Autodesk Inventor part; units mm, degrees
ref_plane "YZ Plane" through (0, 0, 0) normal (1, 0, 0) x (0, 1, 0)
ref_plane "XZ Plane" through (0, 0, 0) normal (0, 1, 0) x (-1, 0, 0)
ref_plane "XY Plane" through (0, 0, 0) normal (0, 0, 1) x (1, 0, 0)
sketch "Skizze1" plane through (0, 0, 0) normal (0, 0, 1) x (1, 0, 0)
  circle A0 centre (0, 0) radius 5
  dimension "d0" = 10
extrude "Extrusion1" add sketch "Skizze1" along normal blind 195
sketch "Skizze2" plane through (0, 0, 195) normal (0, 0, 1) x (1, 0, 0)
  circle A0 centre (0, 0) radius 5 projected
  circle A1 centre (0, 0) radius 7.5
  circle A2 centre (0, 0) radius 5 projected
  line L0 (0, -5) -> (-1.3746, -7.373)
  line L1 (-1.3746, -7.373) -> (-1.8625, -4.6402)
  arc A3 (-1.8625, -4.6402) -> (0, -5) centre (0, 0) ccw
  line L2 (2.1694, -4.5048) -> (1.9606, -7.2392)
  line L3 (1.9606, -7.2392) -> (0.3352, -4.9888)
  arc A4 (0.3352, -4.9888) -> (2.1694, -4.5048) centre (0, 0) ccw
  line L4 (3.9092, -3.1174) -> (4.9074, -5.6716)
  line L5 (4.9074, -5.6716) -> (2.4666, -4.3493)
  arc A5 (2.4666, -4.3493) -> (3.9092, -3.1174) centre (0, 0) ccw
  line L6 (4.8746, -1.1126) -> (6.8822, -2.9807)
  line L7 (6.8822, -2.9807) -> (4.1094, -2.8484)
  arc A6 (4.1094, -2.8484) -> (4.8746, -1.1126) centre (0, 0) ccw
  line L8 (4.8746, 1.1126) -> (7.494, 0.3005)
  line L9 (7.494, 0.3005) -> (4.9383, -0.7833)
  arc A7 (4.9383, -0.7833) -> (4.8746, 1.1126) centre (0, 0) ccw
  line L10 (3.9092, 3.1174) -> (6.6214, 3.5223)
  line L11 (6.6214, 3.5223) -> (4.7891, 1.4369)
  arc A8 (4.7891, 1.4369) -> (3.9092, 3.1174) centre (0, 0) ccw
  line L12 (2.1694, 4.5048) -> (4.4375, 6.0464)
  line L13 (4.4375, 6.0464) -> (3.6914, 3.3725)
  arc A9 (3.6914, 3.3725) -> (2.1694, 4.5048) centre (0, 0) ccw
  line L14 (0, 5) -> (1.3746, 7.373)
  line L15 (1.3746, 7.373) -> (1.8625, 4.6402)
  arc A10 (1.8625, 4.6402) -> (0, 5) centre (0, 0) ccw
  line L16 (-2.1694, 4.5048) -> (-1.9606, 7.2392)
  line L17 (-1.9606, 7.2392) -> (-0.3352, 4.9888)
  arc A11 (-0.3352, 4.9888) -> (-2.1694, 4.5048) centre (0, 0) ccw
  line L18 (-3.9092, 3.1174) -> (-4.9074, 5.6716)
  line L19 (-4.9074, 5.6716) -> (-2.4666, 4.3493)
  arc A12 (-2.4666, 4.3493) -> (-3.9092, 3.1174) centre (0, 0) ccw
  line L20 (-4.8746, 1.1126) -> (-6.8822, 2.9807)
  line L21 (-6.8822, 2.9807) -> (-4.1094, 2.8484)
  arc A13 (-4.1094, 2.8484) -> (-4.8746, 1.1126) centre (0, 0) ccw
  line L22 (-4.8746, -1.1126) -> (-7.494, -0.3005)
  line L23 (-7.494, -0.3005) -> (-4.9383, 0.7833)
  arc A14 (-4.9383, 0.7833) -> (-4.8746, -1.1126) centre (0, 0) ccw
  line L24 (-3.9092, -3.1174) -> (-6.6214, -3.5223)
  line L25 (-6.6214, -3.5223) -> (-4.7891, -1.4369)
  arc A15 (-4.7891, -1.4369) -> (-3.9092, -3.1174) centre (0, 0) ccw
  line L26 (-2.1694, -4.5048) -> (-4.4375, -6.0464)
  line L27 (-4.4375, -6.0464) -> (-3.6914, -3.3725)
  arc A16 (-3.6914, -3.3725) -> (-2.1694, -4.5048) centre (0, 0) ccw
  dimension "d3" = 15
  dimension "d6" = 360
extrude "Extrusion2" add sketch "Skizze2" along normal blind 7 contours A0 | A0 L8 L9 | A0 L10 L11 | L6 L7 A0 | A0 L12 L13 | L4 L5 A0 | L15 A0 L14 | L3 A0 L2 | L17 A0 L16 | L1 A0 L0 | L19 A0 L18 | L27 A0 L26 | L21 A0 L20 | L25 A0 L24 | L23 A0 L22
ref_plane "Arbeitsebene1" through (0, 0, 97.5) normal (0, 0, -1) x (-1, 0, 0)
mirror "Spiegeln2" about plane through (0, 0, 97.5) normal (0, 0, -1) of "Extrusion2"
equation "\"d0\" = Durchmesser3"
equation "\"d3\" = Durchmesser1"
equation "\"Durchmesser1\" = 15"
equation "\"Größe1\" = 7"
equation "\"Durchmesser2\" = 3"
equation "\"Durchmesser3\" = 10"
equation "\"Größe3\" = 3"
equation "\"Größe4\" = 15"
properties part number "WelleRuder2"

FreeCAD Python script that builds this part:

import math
import FreeCAD as App
import Part
import Sketcher
Q = App.Units.Quantity

doc = App.newDocument("Part")
body = doc.addObject("PartDesign::Body", "Body")

# Sketch on XY plane
sketch1 = body.newObject("Sketcher::SketchObject", "Sketch")
sketch1.AttachmentSupport = (doc.getObject("XY_Plane"), [""])
sketch1.MapMode = "FlatFace"
sketch1.addGeometry(Part.Circle(App.Vector(0, 0, 0), App.Vector(0, 0, 1), 5), False)
sketch1.addConstraint([
    Sketcher.Constraint("Coincident", 0, 3, -1, 1),
    Sketcher.Constraint("Diameter", 0, Q("10 mm")),
])
pad1 = body.newObject("PartDesign::Pad", "Pad")
pad1.Profile = sketch1
pad1.Length = 195

# Sketch on XY plane
sketch2 = body.newObject("Sketcher::SketchObject", "Sketch001")
sketch2.AttachmentSupport = (doc.getObject("XY_Plane"), [""])
sketch2.MapMode = "FlatFace"
sketch2.AttachmentOffset = App.Placement(App.Vector(0, 0, 195), App.Rotation())
sketch2.addGeometry([
    Part.ArcOfCircle(Part.Circle(App.Vector(0, 0, 0), App.Vector(0, 0, 1), 5), math.radians(-12.86), math.radians(-9.01)),  # 0
    Part.LineSegment(App.Vector(4.94, -0.78, 0), App.Vector(7.49, 0.3, 0)),  # 1
    Part.LineSegment(App.Vector(7.49, 0.3, 0), App.Vector(4.87, 1.11, 0)),  # 2
    Part.ArcOfCircle(Part.Circle(App.Vector(0, 0, 0), App.Vector(0, 0, 1), 5), math.radians(12.86), math.radians(16.7)),  # 3
    Part.LineSegment(App.Vector(4.79, 1.44, 0), App.Vector(6.62, 3.52, 0)),  # 4
    Part.LineSegment(App.Vector(6.62, 3.52, 0), App.Vector(3.91, 3.12, 0)),  # 5
    Part.ArcOfCircle(Part.Circle(App.Vector(0, 0, 0), App.Vector(0, 0, 1), 5), math.radians(38.57), math.radians(42.42)),  # 6
    Part.LineSegment(App.Vector(3.69, 3.37, 0), App.Vector(4.44, 6.05, 0)),  # 7
    Part.LineSegment(App.Vector(4.44, 6.05, 0), App.Vector(2.17, 4.5, 0)),  # 8
    Part.ArcOfCircle(Part.Circle(App.Vector(0, 0, 0), App.Vector(0, 0, 1), 5), math.radians(64.29), math.radians(68.13)),  # 9
    Part.LineSegment(App.Vector(1.86, 4.64, 0), App.Vector(1.37, 7.37, 0)),  # 10
    Part.LineSegment(App.Vector(1.37, 7.37, 0), App.Vector(0, 5, 0)),  # 11
    Part.ArcOfCircle(Part.Circle(App.Vector(0, 0, 0), App.Vector(0, 0, 1), 5), math.radians(90), math.radians(93.84)),  # 12
    Part.LineSegment(App.Vector(-0.34, 4.99, 0), App.Vector(-1.96, 7.24, 0)),  # 13
    Part.LineSegment(App.Vector(-1.96, 7.24, 0), App.Vector(-2.17, 4.5, 0)),  # 14
    Part.ArcOfCircle(Part.Circle(App.Vector(0, 0, 0), App.Vector(0, 0, 1), 5), math.radians(115.71), math.radians(119.56)),  # 15
    Part.LineSegment(App.Vector(-2.47, 4.35, 0), App.Vector(-4.91, 5.67, 0)),  # 16
    Part.LineSegment(App.Vector(-4.91, 5.67, 0), App.Vector(-3.91, 3.12, 0)),  # 17
    Part.ArcOfCircle(Part.Circle(App.Vector(0, 0, 0), App.Vector(0, 0, 1), 5), math.radians(141.43), math.radians(145.27)),  # 18
    Part.LineSegment(App.Vector(-4.11, 2.85, 0), App.Vector(-6.88, 2.98, 0)),  # 19
    Part.LineSegment(App.Vector(-6.88, 2.98, 0), App.Vector(-4.87, 1.11, 0)),  # 20
    Part.ArcOfCircle(Part.Circle(App.Vector(0, 0, 0), App.Vector(0, 0, 1), 5), math.radians(167.14), math.radians(170.99)),  # 21
    Part.LineSegment(App.Vector(-4.94, 0.78, 0), App.Vector(-7.49, -0.3, 0)),  # 22
    Part.LineSegment(App.Vector(-7.49, -0.3, 0), App.Vector(-4.87, -1.11, 0)),  # 23
    Part.ArcOfCircle(Part.Circle(App.Vector(0, 0, 0), App.Vector(0, 0, 1), 5), math.radians(-167.14), math.radians(-163.3)),  # 24
    Part.LineSegment(App.Vector(-4.79, -1.44, 0), App.Vector(-6.62, -3.52, 0)),  # 25
    Part.LineSegment(App.Vector(-6.62, -3.52, 0), App.Vector(-3.91, -3.12, 0)),  # 26
    Part.ArcOfCircle(Part.Circle(App.Vector(0, 0, 0), App.Vector(0, 0, 1), 5), math.radians(-141.43), math.radians(-137.58)),  # 27
    Part.LineSegment(App.Vector(-3.69, -3.37, 0), App.Vector(-4.44, -6.05, 0)),  # 28
    Part.LineSegment(App.Vector(-4.44, -6.05, 0), App.Vector(-2.17, -4.5, 0)),  # 29
    Part.ArcOfCircle(Part.Circle(App.Vector(0, 0, 0), App.Vector(0, 0, 1), 5), math.radians(-115.71), math.radians(-111.87)),  # 30
    Part.LineSegment(App.Vector(-1.86, -4.64, 0), App.Vector(-1.37, -7.37, 0)),  # 31
    Part.LineSegment(App.Vector(-1.37, -7.37, 0), App.Vector(0, -5, 0)),  # 32
    Part.ArcOfCircle(Part.Circle(App.Vector(0, 0, 0), App.Vector(0, 0, 1), 5), math.radians(-90), math.radians(-86.16)),  # 33
    Part.LineSegment(App.Vector(0.34, -4.99, 0), App.Vector(1.96, -7.24, 0)),  # 34
    Part.LineSegment(App.Vector(1.96, -7.24, 0), App.Vector(2.17, -4.5, 0)),  # 35
    Part.ArcOfCircle(Part.Circle(App.Vector(0, 0, 0), App.Vector(0, 0, 1), 5), math.radians(-64.29), math.radians(-60.44)),  # 36
    Part.LineSegment(App.Vector(2.47, -4.35, 0), App.Vector(4.91, -5.67, 0)),  # 37
    Part.LineSegment(App.Vector(4.91, -5.67, 0), App.Vector(3.91, -3.12, 0)),  # 38
    Part.ArcOfCircle(Part.Circle(App.Vector(0, 0, 0), App.Vector(0, 0, 1), 5), math.radians(-38.57), math.radians(-34.73)),  # 39
    Part.LineSegment(App.Vector(4.11, -2.85, 0), App.Vector(6.88, -2.98, 0)),  # 40
    Part.LineSegment(App.Vector(6.88, -2.98, 0), App.Vector(4.87, -1.11, 0)),  # 41
], False)
sketch2.addConstraint([
    Sketcher.Constraint("Coincident", 0, 2, 1, 1),
    Sketcher.Constraint("Coincident", 1, 2, 2, 1),
    Sketcher.Constraint("Coincident", 2, 2, 3, 1),
    Sketcher.Constraint("Coincident", 3, 2, 4, 1),
    Sketcher.Constraint("Coincident", 4, 2, 5, 1),
    Sketcher.Constraint("Coincident", 5, 2, 6, 1),
    Sketcher.Constraint("Coincident", 6, 2, 7, 1),
    Sketcher.Constraint("Coincident", 7, 2, 8, 1),
    Sketcher.Constraint("Coincident", 8, 2, 9, 1),
    Sketcher.Constraint("Coincident", 9, 2, 10, 1),
    Sketcher.Constraint("Coincident", 10, 2, 11, 1),
    Sketcher.Constraint("Coincident", 11, 2, 12, 1),
    Sketcher.Constraint("Coincident", 12, 2, 13, 1),
    Sketcher.Constraint("Coincident", 13, 2, 14, 1),
    Sketcher.Constraint("Coincident", 14, 2, 15, 1),
    Sketcher.Constraint("Coincident", 15, 2, 16, 1),
    Sketcher.Constraint("Coincident", 16, 2, 17, 1),
    Sketcher.Constraint("Coincident", 17, 2, 18, 1),
    Sketcher.Constraint("Coincident", 18, 2, 19, 1),
    Sketcher.Constraint("Coincident", 19, 2, 20, 1),
    Sketcher.Constraint("Coincident", 20, 2, 21, 1),
    Sketcher.Constraint("Coincident", 21, 2, 22, 1),
    Sketcher.Constraint("Coincident", 22, 2, 23, 1),
    Sketcher.Constraint("Coincident", 23, 2, 24, 1),
    Sketcher.Constraint("Coincident", 24, 2, 25, 1),
    Sketcher.Constraint("Coincident", 25, 2, 26, 1),
    Sketcher.Constraint("Coincident", 26, 2, 27, 1),
    Sketcher.Constraint("Coincident", 27, 2, 28, 1),
    Sketcher.Constraint("Coincident", 28, 2, 29, 1),
    Sketcher.Constraint("Coincident", 29, 2, 30, 1),
    Sketcher.Constraint("Coincident", 30, 2, 31, 1),
    Sketcher.Constraint("Coincident", 31, 2, 32, 1),
    Sketcher.Constraint("Coincident", 32, 2, 33, 1),
    Sketcher.Constraint("Coincident", 33, 2, 34, 1),
    Sketcher.Constraint("Coincident", 34, 2, 35, 1),
    Sketcher.Constraint("Coincident", 35, 2, 36, 1),
    Sketcher.Constraint("Coincident", 36, 2, 37, 1),
    Sketcher.Constraint("Coincident", 37, 2, 38, 1),
    Sketcher.Constraint("Coincident", 38, 2, 39, 1),
    Sketcher.Constraint("Coincident", 39, 2, 40, 1),
    Sketcher.Constraint("Coincident", 40, 2, 41, 1),
    Sketcher.Constraint("Coincident", 41, 2, 0, 1),
    Sketcher.Constraint("Coincident", 0, 3, -1, 1),
    Sketcher.Constraint("Coincident", 3, 3, -1, 1),
    Sketcher.Constraint("Coincident", 6, 3, -1, 1),
    Sketcher.Constraint("Coincident", 9, 3, -1, 1),
    Sketcher.Constraint("Coincident", 12, 3, -1, 1),
    Sketcher.Constraint("Coincident", 15, 3, -1, 1),
    Sketcher.Constraint("Coincident", 18, 3, -1, 1),
    Sketcher.Constraint("Coincident", 21, 3, -1, 1),
    Sketcher.Constraint("Coincident", 24, 3, -1, 1),
    Sketcher.Constraint("Coincident", 27, 3, -1, 1),
    Sketcher.Constraint("Coincident", 30, 3, -1, 1),
    Sketcher.Constraint("Coincident", 33, 3, -1, 1),
    Sketcher.Constraint("Coincident", 36, 3, -1, 1),
    Sketcher.Constraint("Coincident", 39, 3, -1, 1),
    Sketcher.Constraint("Equal", 0, 3),
    Sketcher.Constraint("Equal", 3, 6),
    Sketcher.Constraint("Equal", 6, 9),
    Sketcher.Constraint("Equal", 9, 12),
    Sketcher.Constraint("Equal", 12, 15),
    Sketcher.Constraint("Equal", 15, 18),
    Sketcher.Constraint("Equal", 18, 21),
    Sketcher.Constraint("Equal", 21, 24),
    Sketcher.Constraint("Equal", 24, 27),
    Sketcher.Constraint("Equal", 27, 30),
    Sketcher.Constraint("Equal", 30, 33),
    Sketcher.Constraint("Equal", 33, 36),
    Sketcher.Constraint("Equal", 36, 39),
    Sketcher.Constraint("Symmetric", 1, 2, 22, 2, -1, 1),
    Sketcher.Constraint("Symmetric", 4, 2, 25, 2, -1, 1),
    Sketcher.Constraint("Symmetric", 7, 2, 28, 2, -1, 1),
    Sketcher.Constraint("Symmetric", 10, 2, 31, 2, -1, 1),
    Sketcher.Constraint("Symmetric", 13, 2, 34, 2, -1, 1),
    Sketcher.Constraint("Symmetric", 16, 2, 37, 2, -1, 1),
    Sketcher.Constraint("Symmetric", 19, 2, 40, 2, -1, 1),
    Sketcher.Constraint("PointOnObject", 11, 2, -2),
    Sketcher.Constraint("PointOnObject", 32, 2, -2),
    Sketcher.Constraint("Parallel", 1, 22),
    Sketcher.Constraint("Parallel", 2, 23),
    Sketcher.Constraint("Parallel", 4, 25),
    Sketcher.Constraint("Parallel", 5, 26),
    Sketcher.Constraint("Parallel", 7, 28),
    Sketcher.Constraint("Parallel", 8, 29),
    Sketcher.Constraint("Parallel", 10, 31),
    Sketcher.Constraint("Parallel", 13, 34),
    Sketcher.Constraint("Parallel", 14, 35),
    Sketcher.Constraint("Parallel", 16, 37),
    Sketcher.Constraint("Parallel", 17, 38),
    Sketcher.Constraint("Parallel", 19, 40),
    Sketcher.Constraint("Parallel", 20, 41),
    Sketcher.Constraint("Horizontal", 8, 2, 14, 2),
    Sketcher.Constraint("Horizontal", 5, 2, 17, 2),
    Sketcher.Constraint("Horizontal", 2, 2, 20, 2),
    Sketcher.Constraint("Equal", 1, 4),
    Sketcher.Constraint("Equal", 2, 5),
    Sketcher.Constraint("Equal", 4, 7),
    Sketcher.Constraint("Equal", 5, 8),
    Sketcher.Constraint("Equal", 7, 10),
    Sketcher.Constraint("Equal", 8, 11),
    Sketcher.Constraint("Equal", 10, 13),
    Sketcher.Constraint("Equal", 11, 14),
    Sketcher.Constraint("Equal", 13, 16),
    Sketcher.Constraint("Equal", 14, 17),
    Sketcher.Constraint("Equal", 16, 19),
    Sketcher.Constraint("Equal", 17, 20),
    Sketcher.Constraint("Radius", 0, Q("5 mm")),
    Sketcher.Constraint("Angle", 1, Q("22.9804 deg")),
    Sketcher.Constraint("Angle", 5, Q("-171.509 deg")),
    Sketcher.Constraint("Angle", 7, Q("74.4093 deg")),
    Sketcher.Constraint("Angle", 13, Q("125.8395 deg")),
    Sketcher.Constraint("DistanceX", 5, 2, 3, 2, Q("0.88 mm")),
    Sketcher.Constraint("DistanceY", 2, 2, 6, 2, Q("2.26 mm")),
    Sketcher.Constraint("DistanceX", 6, 2, 4, 2, Q("2.93 mm")),
    Sketcher.Constraint("DistanceX", 13, 2, 8, 2, Q("4.13 mm")),
    Sketcher.Constraint("DistanceY", 15, 2, 13, 2, Q("2.89 mm")),
    Sketcher.Constraint("DistanceX", 18, 2, 14, 2, Q("1.94 mm")),
    Sketcher.Constraint("DistanceY", 23, 2, 17, 2, Q("4.23 mm")),
    Sketcher.Constraint("DistanceY", -1, 1, 10, 2, Q("7.373 mm")),
])
pad2 = body.newObject("PartDesign::Pad", "Pad001")
pad2.Profile = sketch2
pad2.Length = 7
doc.recompute()

datumplane = body.newObject("PartDesign::Plane", "DatumPlane")
datumplane.AttachmentSupport = (doc.getObject("XY_Plane"), [""])
datumplane.MapMode = "FlatFace"
datumplane.AttachmentOffset = App.Placement(App.Vector(0, 0, 97.5), App.Rotation())
mirrored = body.newObject("PartDesign::Mirrored", "Mirrored")
mirrored.Originals = [pad2]
mirrored.MirrorPlane = (datumplane, [""])
body.Tip = mirrored

doc.recompute()
